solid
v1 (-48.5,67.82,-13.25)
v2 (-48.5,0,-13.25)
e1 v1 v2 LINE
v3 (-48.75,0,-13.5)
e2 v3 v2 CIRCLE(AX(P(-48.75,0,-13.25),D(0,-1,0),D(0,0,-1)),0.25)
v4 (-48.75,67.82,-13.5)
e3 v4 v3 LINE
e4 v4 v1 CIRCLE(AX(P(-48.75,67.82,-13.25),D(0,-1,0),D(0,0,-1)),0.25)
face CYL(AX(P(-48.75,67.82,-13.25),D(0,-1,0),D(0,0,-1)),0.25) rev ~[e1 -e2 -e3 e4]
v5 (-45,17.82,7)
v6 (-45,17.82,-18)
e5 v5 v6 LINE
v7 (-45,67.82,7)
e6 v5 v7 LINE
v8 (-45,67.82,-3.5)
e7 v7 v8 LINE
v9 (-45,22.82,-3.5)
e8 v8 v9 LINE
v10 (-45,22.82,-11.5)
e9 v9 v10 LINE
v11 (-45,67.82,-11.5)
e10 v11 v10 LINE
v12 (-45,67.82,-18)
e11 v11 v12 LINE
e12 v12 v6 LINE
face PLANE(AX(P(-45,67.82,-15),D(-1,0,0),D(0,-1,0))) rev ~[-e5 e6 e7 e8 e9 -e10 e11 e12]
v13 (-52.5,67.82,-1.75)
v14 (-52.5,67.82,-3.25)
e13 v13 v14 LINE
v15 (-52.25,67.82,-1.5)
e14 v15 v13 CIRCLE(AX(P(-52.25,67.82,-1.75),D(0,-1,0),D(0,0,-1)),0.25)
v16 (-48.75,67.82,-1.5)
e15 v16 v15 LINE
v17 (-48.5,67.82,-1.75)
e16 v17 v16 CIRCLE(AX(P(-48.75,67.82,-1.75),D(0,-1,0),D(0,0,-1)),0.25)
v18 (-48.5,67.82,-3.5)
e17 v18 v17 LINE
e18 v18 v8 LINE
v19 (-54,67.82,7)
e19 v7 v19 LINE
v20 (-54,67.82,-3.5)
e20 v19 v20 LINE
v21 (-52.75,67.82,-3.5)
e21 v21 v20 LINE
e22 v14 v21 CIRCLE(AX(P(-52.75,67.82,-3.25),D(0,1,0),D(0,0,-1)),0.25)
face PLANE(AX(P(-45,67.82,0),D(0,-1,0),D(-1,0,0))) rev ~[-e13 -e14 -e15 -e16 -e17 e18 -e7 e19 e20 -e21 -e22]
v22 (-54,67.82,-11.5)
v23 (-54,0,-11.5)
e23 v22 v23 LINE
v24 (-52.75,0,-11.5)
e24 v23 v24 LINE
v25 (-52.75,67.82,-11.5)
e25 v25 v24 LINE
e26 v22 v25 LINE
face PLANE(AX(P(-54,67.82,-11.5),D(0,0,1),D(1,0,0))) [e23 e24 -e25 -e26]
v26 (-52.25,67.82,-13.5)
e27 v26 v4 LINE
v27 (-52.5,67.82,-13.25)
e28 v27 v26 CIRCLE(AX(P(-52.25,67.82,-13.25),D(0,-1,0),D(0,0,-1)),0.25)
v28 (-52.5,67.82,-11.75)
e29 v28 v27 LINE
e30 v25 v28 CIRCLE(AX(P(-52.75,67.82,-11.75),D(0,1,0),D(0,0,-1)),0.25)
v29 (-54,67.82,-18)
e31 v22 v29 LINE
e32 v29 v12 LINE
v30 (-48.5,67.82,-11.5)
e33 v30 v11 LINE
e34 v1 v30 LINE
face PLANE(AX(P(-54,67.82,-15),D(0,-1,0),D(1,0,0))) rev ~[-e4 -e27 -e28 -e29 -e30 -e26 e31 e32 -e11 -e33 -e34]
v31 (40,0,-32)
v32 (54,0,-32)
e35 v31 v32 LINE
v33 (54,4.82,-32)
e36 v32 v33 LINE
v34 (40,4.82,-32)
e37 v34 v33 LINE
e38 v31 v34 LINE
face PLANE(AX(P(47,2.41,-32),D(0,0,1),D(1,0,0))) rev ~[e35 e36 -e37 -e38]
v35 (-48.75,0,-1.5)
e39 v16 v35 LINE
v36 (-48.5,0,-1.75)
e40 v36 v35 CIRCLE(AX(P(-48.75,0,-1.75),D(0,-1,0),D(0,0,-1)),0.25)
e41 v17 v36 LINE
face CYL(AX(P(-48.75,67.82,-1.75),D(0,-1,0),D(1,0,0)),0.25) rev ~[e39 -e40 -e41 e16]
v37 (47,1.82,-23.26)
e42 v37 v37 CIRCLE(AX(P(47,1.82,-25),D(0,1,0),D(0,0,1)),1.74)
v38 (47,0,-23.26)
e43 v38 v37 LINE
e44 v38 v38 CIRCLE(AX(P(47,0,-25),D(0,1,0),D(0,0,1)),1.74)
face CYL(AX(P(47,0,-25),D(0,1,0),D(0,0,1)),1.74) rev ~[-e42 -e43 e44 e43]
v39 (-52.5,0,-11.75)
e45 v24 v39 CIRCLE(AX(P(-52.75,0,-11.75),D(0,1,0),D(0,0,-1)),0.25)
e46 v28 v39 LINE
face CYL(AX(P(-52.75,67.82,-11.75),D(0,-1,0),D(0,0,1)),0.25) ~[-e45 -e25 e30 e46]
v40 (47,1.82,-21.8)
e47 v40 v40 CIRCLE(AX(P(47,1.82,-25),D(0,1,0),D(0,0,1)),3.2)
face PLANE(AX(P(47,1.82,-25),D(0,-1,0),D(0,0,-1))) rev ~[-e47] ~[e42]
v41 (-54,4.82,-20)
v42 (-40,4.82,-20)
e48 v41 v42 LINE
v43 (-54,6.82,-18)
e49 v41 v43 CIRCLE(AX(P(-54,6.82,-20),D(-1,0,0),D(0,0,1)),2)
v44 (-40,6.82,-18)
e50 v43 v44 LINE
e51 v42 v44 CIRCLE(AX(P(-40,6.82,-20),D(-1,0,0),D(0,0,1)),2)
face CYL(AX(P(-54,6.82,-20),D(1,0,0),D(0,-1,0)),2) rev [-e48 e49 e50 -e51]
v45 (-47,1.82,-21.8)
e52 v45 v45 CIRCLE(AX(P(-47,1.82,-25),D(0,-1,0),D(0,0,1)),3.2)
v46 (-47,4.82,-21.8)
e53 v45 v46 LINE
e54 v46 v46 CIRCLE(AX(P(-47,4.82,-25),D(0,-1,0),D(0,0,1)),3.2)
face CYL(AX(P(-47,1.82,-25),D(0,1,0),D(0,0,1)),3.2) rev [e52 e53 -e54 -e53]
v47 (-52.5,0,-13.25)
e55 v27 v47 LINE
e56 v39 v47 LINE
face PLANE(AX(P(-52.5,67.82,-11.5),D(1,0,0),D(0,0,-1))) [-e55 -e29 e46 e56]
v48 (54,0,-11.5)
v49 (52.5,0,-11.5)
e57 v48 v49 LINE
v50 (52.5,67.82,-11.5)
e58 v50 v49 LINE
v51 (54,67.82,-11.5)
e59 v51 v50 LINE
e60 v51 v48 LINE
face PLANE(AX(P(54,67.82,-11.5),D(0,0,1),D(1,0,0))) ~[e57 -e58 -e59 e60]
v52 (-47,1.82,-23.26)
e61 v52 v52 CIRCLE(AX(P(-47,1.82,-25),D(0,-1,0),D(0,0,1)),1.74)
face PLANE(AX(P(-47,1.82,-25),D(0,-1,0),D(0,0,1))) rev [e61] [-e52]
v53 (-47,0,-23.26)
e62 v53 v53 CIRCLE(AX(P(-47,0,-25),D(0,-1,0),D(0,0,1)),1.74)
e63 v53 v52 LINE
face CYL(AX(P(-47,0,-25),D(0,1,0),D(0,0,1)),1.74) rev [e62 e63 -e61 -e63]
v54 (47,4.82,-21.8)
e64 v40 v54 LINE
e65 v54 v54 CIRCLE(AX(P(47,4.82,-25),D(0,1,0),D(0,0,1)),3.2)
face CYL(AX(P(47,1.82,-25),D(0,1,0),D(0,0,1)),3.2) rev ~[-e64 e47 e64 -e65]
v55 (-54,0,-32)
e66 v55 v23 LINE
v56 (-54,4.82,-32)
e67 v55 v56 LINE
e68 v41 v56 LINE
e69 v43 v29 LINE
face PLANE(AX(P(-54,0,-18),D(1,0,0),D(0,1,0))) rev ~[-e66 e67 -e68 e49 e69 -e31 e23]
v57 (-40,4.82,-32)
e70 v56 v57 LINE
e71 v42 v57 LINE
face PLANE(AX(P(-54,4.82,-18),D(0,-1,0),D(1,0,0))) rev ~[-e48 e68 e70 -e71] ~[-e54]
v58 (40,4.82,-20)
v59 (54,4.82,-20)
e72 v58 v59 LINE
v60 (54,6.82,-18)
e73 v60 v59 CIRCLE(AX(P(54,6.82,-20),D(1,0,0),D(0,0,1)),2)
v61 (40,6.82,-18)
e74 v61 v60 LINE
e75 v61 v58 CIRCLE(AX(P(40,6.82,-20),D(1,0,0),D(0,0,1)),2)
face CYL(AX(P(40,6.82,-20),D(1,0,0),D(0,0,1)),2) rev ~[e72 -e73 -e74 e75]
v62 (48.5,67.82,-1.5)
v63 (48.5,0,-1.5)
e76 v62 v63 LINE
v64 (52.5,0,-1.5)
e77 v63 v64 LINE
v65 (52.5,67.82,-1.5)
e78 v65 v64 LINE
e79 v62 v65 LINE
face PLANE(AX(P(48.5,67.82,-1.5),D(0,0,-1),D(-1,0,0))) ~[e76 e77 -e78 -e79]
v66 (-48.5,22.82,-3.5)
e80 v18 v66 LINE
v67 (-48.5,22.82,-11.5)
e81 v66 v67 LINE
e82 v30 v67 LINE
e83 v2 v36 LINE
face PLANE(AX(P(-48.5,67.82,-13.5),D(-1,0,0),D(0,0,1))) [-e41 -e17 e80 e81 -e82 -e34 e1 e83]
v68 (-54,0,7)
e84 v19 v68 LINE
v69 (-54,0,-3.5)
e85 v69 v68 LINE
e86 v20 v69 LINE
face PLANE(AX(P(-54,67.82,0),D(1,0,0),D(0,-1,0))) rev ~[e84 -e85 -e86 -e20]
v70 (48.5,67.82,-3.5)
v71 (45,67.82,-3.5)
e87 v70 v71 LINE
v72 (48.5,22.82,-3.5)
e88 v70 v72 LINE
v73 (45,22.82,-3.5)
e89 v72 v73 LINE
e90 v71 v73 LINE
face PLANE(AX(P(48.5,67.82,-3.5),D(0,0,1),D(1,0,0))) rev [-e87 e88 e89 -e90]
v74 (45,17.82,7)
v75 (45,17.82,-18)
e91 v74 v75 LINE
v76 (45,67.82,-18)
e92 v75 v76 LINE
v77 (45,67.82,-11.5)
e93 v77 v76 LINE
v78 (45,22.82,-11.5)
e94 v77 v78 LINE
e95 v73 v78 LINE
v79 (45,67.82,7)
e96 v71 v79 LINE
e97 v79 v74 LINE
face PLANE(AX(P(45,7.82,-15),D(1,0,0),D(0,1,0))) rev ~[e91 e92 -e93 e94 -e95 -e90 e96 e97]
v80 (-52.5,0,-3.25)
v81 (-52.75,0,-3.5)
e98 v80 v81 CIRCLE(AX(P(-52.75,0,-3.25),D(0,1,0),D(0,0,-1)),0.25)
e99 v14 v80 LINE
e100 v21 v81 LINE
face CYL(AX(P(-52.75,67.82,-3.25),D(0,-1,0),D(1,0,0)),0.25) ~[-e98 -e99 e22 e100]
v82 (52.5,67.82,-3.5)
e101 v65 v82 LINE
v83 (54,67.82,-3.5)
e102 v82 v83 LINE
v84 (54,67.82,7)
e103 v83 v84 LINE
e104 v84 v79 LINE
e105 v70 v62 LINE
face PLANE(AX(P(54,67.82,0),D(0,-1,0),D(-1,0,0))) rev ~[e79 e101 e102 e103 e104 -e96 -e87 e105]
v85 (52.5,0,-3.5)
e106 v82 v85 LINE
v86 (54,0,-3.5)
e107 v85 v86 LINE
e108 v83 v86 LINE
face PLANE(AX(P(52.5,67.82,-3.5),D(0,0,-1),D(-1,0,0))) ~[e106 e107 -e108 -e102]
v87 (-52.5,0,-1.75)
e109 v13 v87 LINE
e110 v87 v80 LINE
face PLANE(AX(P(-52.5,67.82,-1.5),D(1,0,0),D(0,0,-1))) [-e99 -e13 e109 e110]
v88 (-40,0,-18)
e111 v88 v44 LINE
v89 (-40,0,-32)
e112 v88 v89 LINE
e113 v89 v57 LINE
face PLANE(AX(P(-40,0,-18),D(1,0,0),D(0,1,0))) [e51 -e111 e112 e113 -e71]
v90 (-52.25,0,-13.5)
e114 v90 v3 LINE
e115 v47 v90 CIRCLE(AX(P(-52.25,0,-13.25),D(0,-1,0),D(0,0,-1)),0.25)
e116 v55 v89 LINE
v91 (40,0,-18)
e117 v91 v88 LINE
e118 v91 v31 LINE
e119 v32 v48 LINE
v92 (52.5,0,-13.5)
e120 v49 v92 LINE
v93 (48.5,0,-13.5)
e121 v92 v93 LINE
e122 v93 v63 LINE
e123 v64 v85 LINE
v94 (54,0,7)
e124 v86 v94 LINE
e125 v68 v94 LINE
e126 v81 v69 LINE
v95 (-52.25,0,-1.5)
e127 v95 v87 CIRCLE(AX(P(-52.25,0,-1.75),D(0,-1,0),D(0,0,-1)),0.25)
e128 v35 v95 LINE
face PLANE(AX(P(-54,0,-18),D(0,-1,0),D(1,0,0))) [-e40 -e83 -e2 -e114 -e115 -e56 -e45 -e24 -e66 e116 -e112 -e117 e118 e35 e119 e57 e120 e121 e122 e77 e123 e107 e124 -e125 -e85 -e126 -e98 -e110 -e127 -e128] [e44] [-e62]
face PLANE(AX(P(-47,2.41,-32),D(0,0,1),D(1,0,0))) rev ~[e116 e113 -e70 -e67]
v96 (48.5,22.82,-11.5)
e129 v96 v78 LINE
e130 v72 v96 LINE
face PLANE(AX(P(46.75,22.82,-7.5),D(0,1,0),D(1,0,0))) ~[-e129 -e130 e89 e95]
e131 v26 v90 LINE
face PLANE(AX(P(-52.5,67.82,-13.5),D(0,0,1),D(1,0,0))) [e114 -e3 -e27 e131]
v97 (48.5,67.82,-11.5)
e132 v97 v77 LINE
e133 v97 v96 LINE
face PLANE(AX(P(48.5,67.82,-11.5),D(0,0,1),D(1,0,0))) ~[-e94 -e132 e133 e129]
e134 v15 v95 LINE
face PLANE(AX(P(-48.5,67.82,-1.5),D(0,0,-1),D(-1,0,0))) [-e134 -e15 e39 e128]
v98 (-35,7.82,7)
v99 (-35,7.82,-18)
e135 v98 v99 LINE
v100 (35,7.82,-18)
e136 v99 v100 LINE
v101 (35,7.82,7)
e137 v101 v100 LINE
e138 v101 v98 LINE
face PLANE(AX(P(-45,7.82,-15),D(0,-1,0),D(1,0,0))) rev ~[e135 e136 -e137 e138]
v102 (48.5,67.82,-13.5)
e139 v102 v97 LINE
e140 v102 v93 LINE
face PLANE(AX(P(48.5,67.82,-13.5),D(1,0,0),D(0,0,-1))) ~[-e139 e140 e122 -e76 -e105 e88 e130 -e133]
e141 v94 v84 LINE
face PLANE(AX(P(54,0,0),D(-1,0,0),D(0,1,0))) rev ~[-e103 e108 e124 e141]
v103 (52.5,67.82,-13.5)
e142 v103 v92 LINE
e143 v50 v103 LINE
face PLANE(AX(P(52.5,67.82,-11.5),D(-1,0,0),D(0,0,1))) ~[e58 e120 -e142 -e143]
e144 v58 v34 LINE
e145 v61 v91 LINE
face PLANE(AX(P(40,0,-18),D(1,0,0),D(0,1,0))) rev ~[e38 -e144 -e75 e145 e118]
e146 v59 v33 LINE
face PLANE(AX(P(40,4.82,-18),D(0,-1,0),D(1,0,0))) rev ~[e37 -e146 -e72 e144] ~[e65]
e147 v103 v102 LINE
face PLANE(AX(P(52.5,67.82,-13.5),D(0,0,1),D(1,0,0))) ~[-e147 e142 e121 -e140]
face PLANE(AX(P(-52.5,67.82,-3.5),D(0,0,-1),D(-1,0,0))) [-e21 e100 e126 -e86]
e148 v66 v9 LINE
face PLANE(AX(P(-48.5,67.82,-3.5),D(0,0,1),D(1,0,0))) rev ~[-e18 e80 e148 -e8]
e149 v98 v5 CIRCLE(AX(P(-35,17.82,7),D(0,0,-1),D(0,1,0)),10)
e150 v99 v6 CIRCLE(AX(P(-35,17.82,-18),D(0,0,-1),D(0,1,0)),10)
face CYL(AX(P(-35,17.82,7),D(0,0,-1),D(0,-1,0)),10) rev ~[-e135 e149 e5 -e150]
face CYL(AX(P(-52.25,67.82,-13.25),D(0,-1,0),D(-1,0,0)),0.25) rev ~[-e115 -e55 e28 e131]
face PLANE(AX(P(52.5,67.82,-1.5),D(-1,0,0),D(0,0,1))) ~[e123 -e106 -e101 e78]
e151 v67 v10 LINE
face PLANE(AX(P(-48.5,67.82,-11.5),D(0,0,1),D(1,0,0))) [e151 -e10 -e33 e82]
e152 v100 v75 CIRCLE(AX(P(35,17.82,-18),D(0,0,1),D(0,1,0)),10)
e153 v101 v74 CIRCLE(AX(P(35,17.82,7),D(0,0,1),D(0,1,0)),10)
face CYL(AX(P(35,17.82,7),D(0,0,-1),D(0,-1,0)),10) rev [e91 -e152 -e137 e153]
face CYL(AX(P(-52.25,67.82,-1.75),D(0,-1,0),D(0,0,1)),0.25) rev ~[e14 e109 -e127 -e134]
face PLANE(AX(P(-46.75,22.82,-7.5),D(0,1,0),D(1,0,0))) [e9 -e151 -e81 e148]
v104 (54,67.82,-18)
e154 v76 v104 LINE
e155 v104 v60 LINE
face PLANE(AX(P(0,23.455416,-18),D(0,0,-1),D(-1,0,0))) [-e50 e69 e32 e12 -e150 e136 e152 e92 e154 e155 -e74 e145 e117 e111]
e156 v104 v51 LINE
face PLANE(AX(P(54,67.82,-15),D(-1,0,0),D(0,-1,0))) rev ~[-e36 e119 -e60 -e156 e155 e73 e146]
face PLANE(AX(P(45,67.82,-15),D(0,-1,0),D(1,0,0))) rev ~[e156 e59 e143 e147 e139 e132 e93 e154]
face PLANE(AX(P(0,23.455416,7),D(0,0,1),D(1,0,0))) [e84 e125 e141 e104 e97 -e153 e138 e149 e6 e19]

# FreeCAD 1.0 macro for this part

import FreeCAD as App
import Part
import Sketcher

V = App.Vector


def edges_at(feature, points):
    """Names of the edges that pass closest to the given points."""
    edges = feature.Shape.Edges
    near = lambda p: min(range(len(edges)), key=lambda i: edges[i].distToShape(Part.Vertex(*p))[0])
    return sorted({f"Edge{near(p) + 1}" for p in points})


def add_polygon(sketch, points):
    """Adds a closed chain of lines whose ends are joined by coincident constraints."""
    first, n = sketch.GeometryCount, len(points)
    for a, b in zip(points, points[1:] + points[:1]):
        sketch.addGeometry(Part.LineSegment(App.Vector(*a, 0), App.Vector(*b, 0)), False)
    for i in range(n):
        sketch.addConstraint(Sketcher.Constraint("Coincident", first + i, 2, first + (i + 1) % n, 1))

doc = App.newDocument("Part")
body = doc.addObject("PartDesign::Body", "Body")

sketch1 = body.newObject("Sketcher::SketchObject", "Sketch")
sketch1.AttachmentSupport = (doc.getObject("XY_Plane"), [""])
sketch1.MapMode = "FlatFace"
add_polygon(sketch1, [(-54, 0), (54, 0), (54, 67.82), (45, 67.82), (45, 7.82), (-45, 7.82), (-45, 67.82), (-54, 67.82)])
sketch1.addConstraint(Sketcher.Constraint("Horizontal", 0))
sketch1.addConstraint(Sketcher.Constraint("Vertical", 1))
sketch1.addConstraint(Sketcher.Constraint("Horizontal", 2))
sketch1.addConstraint(Sketcher.Constraint("Vertical", 3))
sketch1.addConstraint(Sketcher.Constraint("Horizontal", 4))
sketch1.addConstraint(Sketcher.Constraint("Vertical", 5))
sketch1.addConstraint(Sketcher.Constraint("Horizontal", 6))
sketch1.addConstraint(Sketcher.Constraint("Vertical", 7))
sketch1.addConstraint(Sketcher.Constraint("Symmetric", 0, 2, 7, 2, -1, 1))
sketch1.addConstraint(Sketcher.Constraint("Symmetric", 2, 2, 5, 2, -2))
sketch1.addConstraint(Sketcher.Constraint("DistanceX", 0, 1, 0, 2, 108.0))
sketch1.addConstraint(Sketcher.Constraint("DistanceX", 2, 2, 2, 1, 9.0))
sketch1.addConstraint(Sketcher.Constraint("DistanceY", 3, 2, 3, 1, 60.0))
sketch1.addConstraint(Sketcher.Constraint("DistanceY", 1, 1, 1, 2, 67.82))
pad1 = body.newObject("PartDesign::Pad", "Pad")
pad1.Profile = sketch1
pad1.Length = 15
pad1.Reversed = True

sketch2 = body.newObject("Sketcher::SketchObject", "Sketch001")
sketch2.AttachmentSupport = (doc.getObject("XZ_Plane"), [""])
sketch2.MapMode = "FlatFace"
sketch2.AttachmentOffset = App.Placement(V(0, 0, -67.82), App.Rotation())
add_polygon(sketch2, [(-52.5, -11.5), (-54, -11.5), (-54, -3.5), (-52.5, -3.5), (-52.5, -1.5), (-48.5, -1.5), (-48.5, -13.5), (-52.5, -13.5)])
sketch2.addConstraint(Sketcher.Constraint("Horizontal", 0))
sketch2.addConstraint(Sketcher.Constraint("Vertical", 1))
sketch2.addConstraint(Sketcher.Constraint("Horizontal", 2))
sketch2.addConstraint(Sketcher.Constraint("Vertical", 3))
sketch2.addConstraint(Sketcher.Constraint("Horizontal", 4))
sketch2.addConstraint(Sketcher.Constraint("Vertical", 5))
sketch2.addConstraint(Sketcher.Constraint("Horizontal", 6))
sketch2.addConstraint(Sketcher.Constraint("Vertical", 7))
sketch2.addConstraint(Sketcher.Constraint("Vertical", 3, 2, 6, 2))
sketch2.addConstraint(Sketcher.Constraint("Equal", 3, 7))
sketch2.addConstraint(Sketcher.Constraint("DistanceX", 4, 1, 4, 2, 4.0))
sketch2.addConstraint(Sketcher.Constraint("DistanceY", 1, 1, 1, 2, 8.0))
sketch2.addConstraint(Sketcher.Constraint("DistanceY", 3, 1, 3, 2, 2.0))
sketch2.addConstraint(Sketcher.Constraint("DistanceX", 0, 2, 0, 1, 1.5))
sketch2.addConstraint(Sketcher.Constraint("DistanceX", 0, 2, -1, 1, 54.0))
sketch2.addConstraint(Sketcher.Constraint("DistanceY", 0, 2, -1, 1, 11.5))
pocket1 = body.newObject("PartDesign::Pocket", "Pocket")
pocket1.Profile = sketch2
pocket1.Length = 67.82
pocket1.Reversed = True

sketch3 = body.newObject("Sketcher::SketchObject", "Sketch002")
sketch3.AttachmentSupport = (doc.getObject("XZ_Plane"), [""])
sketch3.MapMode = "FlatFace"
sketch3.AttachmentOffset = App.Placement(V(0, 0, -67.82), App.Rotation())
add_polygon(sketch3, [(-48.5, -11.5), (-48.5, -3.5), (-45, -3.5), (-45, -11.5)])
sketch3.addConstraint(Sketcher.Constraint("Vertical", 0))
sketch3.addConstraint(Sketcher.Constraint("Horizontal", 1))
sketch3.addConstraint(Sketcher.Constraint("Vertical", 2))
sketch3.addConstraint(Sketcher.Constraint("Horizontal", 3))
sketch3.addConstraint(Sketcher.Constraint("DistanceY", 0, 1, 0, 2, 8.0))
sketch3.addConstraint(Sketcher.Constraint("DistanceX", 1, 1, 1, 2, 3.5))
sketch3.addConstraint(Sketcher.Constraint("DistanceX", 1, 2, -1, 1, 45.0))
sketch3.addConstraint(Sketcher.Constraint("DistanceY", 0, 2, -1, 1, 3.5))
pocket2 = body.newObject("PartDesign::Pocket", "Pocket001")
pocket2.Profile = sketch3
pocket2.Length = 45
pocket2.Reversed = True
doc.recompute()

fillet = body.newObject("PartDesign::Fillet", "Fillet")
fillet.Base = (pocket2, edges_at(pocket2, [
    (-52.5, 33.91, -3.5),
    (-52.5, 33.91, -1.5),
    (-48.5, 33.91, -1.5),
    (-48.5, 33.91, -13.5),
    (-52.5, 33.91, -13.5),
    (-52.5, 33.91, -11.5),
]))
fillet.Radius = 0.25
doc.recompute()

mirrored = body.newObject("PartDesign::Mirrored", "Mirrored")
mirrored.Originals = [pocket1]
mirrored.MirrorPlane = (doc.getObject("YZ_Plane"), [""])
body.Tip = mirrored
doc.recompute()

mirrored2 = body.newObject("PartDesign::Mirrored", "Mirrored001")
mirrored2.Originals = [pocket2]
mirrored2.MirrorPlane = (doc.getObject("YZ_Plane"), [""])
body.Tip = mirrored2

sketch4 = body.newObject("Sketcher::SketchObject", "Sketch003")
sketch4.AttachmentSupport = (doc.getObject("XY_Plane"), [""])
sketch4.MapMode = "FlatFace"
add_polygon(sketch4, [(-54, 67.82), (-54, 0), (54, 0), (54, 67.82), (45, 67.82), (45, 7.82), (-45, 7.82), (-45, 67.82)])
sketch4.addConstraint(Sketcher.Constraint("Vertical", 0))
sketch4.addConstraint(Sketcher.Constraint("Horizontal", 1))
sketch4.addConstraint(Sketcher.Constraint("Vertical", 2))
sketch4.addConstraint(Sketcher.Constraint("Horizontal", 3))
sketch4.addConstraint(Sketcher.Constraint("Vertical", 4))
sketch4.addConstraint(Sketcher.Constraint("Horizontal", 5))
sketch4.addConstraint(Sketcher.Constraint("Vertical", 6))
sketch4.addConstraint(Sketcher.Constraint("Horizontal", 7))
sketch4.addConstraint(Sketcher.Constraint("Symmetric", 0, 2, 1, 2, -1, 1))
sketch4.addConstraint(Sketcher.Constraint("Symmetric", 3, 2, 6, 2, -2))
sketch4.addConstraint(Sketcher.Constraint("DistanceX", 1, 1, 1, 2, 108.0))
sketch4.addConstraint(Sketcher.Constraint("DistanceX", 3, 2, 3, 1, 9.0))
sketch4.addConstraint(Sketcher.Constraint("DistanceY", 4, 2, 4, 1, 60.0))
sketch4.addConstraint(Sketcher.Constraint("DistanceY", 0, 2, 0, 1, 67.82))
pad2 = body.newObject("PartDesign::Pad", "Pad001")
pad2.Profile = sketch4
pad2.Length = 7

sketch5 = body.newObject("Sketcher::SketchObject", "Sketch004")
sketch5.AttachmentSupport = (doc.getObject("XY_Plane"), [""])
sketch5.MapMode = "FlatFace"
sketch5.AttachmentOffset = App.Placement(V(0, 0, -15), App.Rotation())
add_polygon(sketch5, [(-54, 0), (-54, 67.82), (-45, 67.82), (-45, 7.82), (45, 7.82), (45, 67.82), (54, 67.82), (54, 0)])
sketch5.addConstraint(Sketcher.Constraint("Vertical", 0))
sketch5.addConstraint(Sketcher.Constraint("Horizontal", 1))
sketch5.addConstraint(Sketcher.Constraint("Vertical", 2))
sketch5.addConstraint(Sketcher.Constraint("Horizontal", 3))
sketch5.addConstraint(Sketcher.Constraint("Vertical", 4))
sketch5.addConstraint(Sketcher.Constraint("Horizontal", 5))
sketch5.addConstraint(Sketcher.Constraint("Vertical", 6))
sketch5.addConstraint(Sketcher.Constraint("Horizontal", 7))
sketch5.addConstraint(Sketcher.Constraint("Symmetric", 6, 2, 7, 2, -1, 1))
sketch5.addConstraint(Sketcher.Constraint("Symmetric", 1, 2, 4, 2, -2))
sketch5.addConstraint(Sketcher.Constraint("DistanceX", 1, 1, 1, 2, 9.0))
sketch5.addConstraint(Sketcher.Constraint("DistanceX", 3, 1, 3, 2, 90.0))
sketch5.addConstraint(Sketcher.Constraint("DistanceY", 2, 2, 2, 1, 60.0))
sketch5.addConstraint(Sketcher.Constraint("DistanceY", 0, 1, 0, 2, 67.82))
pad3 = body.newObject("PartDesign::Pad", "Pad002")
pad3.Profile = sketch5
pad3.Length = 3
pad3.Reversed = True
doc.recompute()

fillet2 = body.newObject("PartDesign::Fillet", "Fillet001")
fillet2.Base = (pad3, edges_at(pad3, [(-45, 7.82, -5.5), (45, 7.82, -5.5)]))
fillet2.Radius = 10

sketch6 = body.newObject("Sketcher::SketchObject", "Sketch005")
sketch6.AttachmentSupport = (doc.getObject("XY_Plane"), [""])
sketch6.MapMode = "FlatFace"
sketch6.AttachmentOffset = App.Placement(V(0, 0, -18), App.Rotation())
add_polygon(sketch6, [(-54, 4.82), (-54, 0), (-40, 0), (-40, 4.82)])
add_polygon(sketch6, [(40, 4.82), (40, 0), (54, 0), (54, 4.82)])
sketch6.addConstraint(Sketcher.Constraint("Vertical", 0))
sketch6.addConstraint(Sketcher.Constraint("Horizontal", 1))
sketch6.addConstraint(Sketcher.Constraint("Vertical", 2))
sketch6.addConstraint(Sketcher.Constraint("Horizontal", 3))
sketch6.addConstraint(Sketcher.Constraint("Vertical", 4))
sketch6.addConstraint(Sketcher.Constraint("Horizontal", 5))
sketch6.addConstraint(Sketcher.Constraint("Vertical", 6))
sketch6.addConstraint(Sketcher.Constraint("Horizontal", 7))
sketch6.addConstraint(Sketcher.Constraint("Symmetric", 1, 2, 4, 2, -1, 1))
sketch6.addConstraint(Sketcher.Constraint("Symmetric", 0, 2, 5, 2, -2))
sketch6.addConstraint(Sketcher.Constraint("Horizontal", 3, 2, 6, 2))
sketch6.addConstraint(Sketcher.Constraint("DistanceX", 1, 1, 1, 2, 14.0))
sketch6.addConstraint(Sketcher.Constraint("DistanceX", 0, 2, -1, 1, 54.0))
sketch6.addConstraint(Sketcher.Constraint("DistanceY", 0, 2, 0, 1, 4.82))
pad4 = body.newObject("PartDesign::Pad", "Pad003")
pad4.Profile = sketch6
pad4.Length = 14
pad4.Reversed = True

sketch7 = body.newObject("Sketcher::SketchObject", "Sketch006")
sketch7.AttachmentSupport = (doc.getObject("YZ_Plane"), [""])
sketch7.MapMode = "FlatFace"
sketch7.AttachmentOffset = App.Placement(V(0, 0, -47), App.Rotation())
add_polygon(sketch7, [(4.82, -25), (0, -25), (0, -23.26), (1.82, -23.26), (1.82, -21.8), (4.82, -21.8)])
sketch7.addGeometry(Part.LineSegment(V(4.82, -25, 0), V(0, -25, 0)), True)
sketch7.addConstraint(Sketcher.Constraint("Horizontal", 0))
sketch7.addConstraint(Sketcher.Constraint("Vertical", 1))
sketch7.addConstraint(Sketcher.Constraint("Horizontal", 2))
sketch7.addConstraint(Sketcher.Constraint("Vertical", 3))
sketch7.addConstraint(Sketcher.Constraint("Horizontal", 4))
sketch7.addConstraint(Sketcher.Constraint("Vertical", 5))
sketch7.addConstraint(Sketcher.Constraint("Horizontal", 6))
sketch7.addConstraint(Sketcher.Constraint("Coincident", 6, 1, 5, 2))
sketch7.addConstraint(Sketcher.Constraint("PointOnObject", 0, 2, -2))
sketch7.addConstraint(Sketcher.Constraint("PointOnObject", 6, 2, -2))
sketch7.addConstraint(Sketcher.Constraint("DistanceX", 4, 1, 4, 2, 3.0))
sketch7.addConstraint(Sketcher.Constraint("DistanceY", 5, 2, 5, 1, 3.2))
sketch7.addConstraint(Sketcher.Constraint("DistanceY", 0, 2, -1, 1, 25.0))
sketch7.addConstraint(Sketcher.Constraint("DistanceX", 0, 2, 0, 1, 4.82))
sketch7.addConstraint(Sketcher.Constraint("DistanceY", 1, 1, 1, 2, 1.74))
groove = body.newObject("PartDesign::Groove", "Groove")
groove.Profile = sketch7
groove.ReferenceAxis = (sketch7, ["Axis0"])
groove.Angle = 360
doc.recompute()

mirrored3 = body.newObject("PartDesign::Mirrored", "Mirrored002")
mirrored3.Originals = [groove]
mirrored3.MirrorPlane = (doc.getObject("YZ_Plane"), [""])
body.Tip = mirrored3
doc.recompute()

fillet3 = body.newObject("PartDesign::Fillet", "Fillet002")
fillet3.Base = (mirrored3, edges_at(mirrored3, [(-47, 4.82, -18), (47, 4.82, -18)]))
fillet3.Radius = 2

doc.recompute()
